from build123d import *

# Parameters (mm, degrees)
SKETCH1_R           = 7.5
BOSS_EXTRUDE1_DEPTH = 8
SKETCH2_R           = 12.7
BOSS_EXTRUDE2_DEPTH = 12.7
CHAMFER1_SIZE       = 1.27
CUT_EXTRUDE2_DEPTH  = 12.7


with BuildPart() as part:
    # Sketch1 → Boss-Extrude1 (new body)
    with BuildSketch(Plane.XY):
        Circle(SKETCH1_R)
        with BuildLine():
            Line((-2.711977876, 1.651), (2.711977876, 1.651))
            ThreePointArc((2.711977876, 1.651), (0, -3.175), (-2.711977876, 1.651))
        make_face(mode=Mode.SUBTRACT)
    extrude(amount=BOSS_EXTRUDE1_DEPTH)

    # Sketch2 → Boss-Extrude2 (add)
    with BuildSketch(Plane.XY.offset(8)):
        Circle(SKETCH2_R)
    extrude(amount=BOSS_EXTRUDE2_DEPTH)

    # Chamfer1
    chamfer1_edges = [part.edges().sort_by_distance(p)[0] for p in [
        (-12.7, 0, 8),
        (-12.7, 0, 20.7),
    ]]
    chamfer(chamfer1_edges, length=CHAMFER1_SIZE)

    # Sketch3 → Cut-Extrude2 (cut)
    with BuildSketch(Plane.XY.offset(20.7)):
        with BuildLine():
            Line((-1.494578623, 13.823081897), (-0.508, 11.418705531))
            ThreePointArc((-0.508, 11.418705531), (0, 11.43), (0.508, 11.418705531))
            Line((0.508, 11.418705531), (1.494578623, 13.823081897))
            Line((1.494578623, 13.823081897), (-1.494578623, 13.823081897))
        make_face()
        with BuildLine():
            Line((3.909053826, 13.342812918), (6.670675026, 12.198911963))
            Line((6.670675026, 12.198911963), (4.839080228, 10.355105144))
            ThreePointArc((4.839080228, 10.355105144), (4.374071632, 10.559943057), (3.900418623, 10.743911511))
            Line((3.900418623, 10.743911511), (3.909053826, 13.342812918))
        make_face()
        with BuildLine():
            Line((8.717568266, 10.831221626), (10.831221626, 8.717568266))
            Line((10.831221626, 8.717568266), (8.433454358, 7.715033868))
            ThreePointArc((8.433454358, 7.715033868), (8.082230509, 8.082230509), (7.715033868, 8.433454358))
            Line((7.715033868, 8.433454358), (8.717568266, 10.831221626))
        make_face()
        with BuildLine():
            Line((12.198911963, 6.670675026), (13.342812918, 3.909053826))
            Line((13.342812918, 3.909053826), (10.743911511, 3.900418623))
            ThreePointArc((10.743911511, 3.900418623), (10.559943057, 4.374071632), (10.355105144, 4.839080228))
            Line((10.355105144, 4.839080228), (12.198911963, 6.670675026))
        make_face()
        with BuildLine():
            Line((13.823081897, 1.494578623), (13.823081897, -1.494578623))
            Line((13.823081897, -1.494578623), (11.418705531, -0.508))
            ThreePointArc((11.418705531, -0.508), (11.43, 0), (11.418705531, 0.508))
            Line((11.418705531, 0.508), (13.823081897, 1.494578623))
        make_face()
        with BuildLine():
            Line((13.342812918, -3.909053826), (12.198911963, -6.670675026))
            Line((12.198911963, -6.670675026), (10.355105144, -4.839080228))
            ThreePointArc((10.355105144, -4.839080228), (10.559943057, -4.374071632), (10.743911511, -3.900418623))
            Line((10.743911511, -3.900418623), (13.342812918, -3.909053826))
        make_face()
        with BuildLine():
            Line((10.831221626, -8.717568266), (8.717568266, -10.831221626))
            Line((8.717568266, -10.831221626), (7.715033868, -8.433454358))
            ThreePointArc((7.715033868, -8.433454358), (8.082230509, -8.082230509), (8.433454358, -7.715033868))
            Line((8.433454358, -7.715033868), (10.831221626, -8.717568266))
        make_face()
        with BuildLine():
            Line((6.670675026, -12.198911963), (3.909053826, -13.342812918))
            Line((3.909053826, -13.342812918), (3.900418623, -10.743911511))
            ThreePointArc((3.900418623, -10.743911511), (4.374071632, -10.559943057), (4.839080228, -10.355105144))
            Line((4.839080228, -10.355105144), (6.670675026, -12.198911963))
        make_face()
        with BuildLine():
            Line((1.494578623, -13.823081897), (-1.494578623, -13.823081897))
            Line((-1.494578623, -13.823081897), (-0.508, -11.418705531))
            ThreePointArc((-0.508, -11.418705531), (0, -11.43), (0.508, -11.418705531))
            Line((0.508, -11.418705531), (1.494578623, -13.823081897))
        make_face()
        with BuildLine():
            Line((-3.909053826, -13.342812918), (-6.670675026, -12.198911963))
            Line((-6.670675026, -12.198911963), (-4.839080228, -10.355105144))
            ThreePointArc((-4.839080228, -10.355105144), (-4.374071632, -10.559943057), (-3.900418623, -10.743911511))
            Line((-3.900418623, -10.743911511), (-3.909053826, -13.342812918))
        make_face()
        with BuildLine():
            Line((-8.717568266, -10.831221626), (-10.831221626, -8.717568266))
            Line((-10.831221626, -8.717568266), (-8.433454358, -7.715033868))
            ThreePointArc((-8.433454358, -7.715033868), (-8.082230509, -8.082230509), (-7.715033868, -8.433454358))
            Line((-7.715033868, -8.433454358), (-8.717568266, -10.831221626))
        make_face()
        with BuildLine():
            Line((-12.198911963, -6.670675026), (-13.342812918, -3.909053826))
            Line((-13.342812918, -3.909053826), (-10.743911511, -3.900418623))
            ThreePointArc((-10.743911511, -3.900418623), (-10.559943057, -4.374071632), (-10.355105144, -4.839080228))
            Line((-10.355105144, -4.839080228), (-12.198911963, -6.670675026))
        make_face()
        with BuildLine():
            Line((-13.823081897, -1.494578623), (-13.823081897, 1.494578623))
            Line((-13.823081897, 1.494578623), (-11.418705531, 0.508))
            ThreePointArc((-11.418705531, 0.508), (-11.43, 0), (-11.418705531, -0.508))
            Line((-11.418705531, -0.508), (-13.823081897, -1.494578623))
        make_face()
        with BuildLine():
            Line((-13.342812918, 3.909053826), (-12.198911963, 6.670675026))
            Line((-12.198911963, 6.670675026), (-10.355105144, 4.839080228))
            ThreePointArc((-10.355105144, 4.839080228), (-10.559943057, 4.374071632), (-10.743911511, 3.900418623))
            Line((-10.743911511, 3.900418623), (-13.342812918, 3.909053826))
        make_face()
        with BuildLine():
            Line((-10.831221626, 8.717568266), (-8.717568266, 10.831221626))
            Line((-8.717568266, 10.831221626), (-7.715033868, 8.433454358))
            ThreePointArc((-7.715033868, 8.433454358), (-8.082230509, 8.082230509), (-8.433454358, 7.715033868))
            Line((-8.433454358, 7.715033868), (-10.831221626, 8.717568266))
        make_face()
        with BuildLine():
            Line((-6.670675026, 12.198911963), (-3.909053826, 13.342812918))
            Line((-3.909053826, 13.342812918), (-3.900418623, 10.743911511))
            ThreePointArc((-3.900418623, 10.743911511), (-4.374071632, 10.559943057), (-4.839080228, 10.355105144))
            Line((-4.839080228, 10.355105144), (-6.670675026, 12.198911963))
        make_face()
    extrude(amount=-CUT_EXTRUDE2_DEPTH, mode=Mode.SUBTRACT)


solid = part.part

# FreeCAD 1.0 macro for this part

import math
import FreeCAD as App
import Part
import Sketcher
Q = App.Units.Quantity


def edges_at(feature, points):
    """Names of the edges that pass closest to the given points."""
    edges = feature.Shape.Edges
    near = lambda p: min(range(len(edges)), key=lambda i: edges[i].distToShape(Part.Vertex(*p))[0])
    return sorted({f"Edge{near(p) + 1}" for p in points})

doc = App.newDocument("Part")
params = doc.addObject("Spreadsheet::Sheet", "Params")
for row, (alias, value) in enumerate([
    ("sketch1_radius", "0.125 in"),
    ("pad1_length", "8 mm"),
    ("sketch2_diameter", "1 in"),
    ("pad2_length", "0.5 in"),
    ("chamfer_size", "0.05 in"),
    ("sketch3_radius", "0.45 in"),
    ("pocket1_length", "0.5 in"),
], start=1):
    params.set(f"A{row}", alias)
    params.set(f"B{row}", "=" + value)
    params.setAlias(f"B{row}", alias)

body = doc.addObject("PartDesign::Body", "Body")

# Sketch on XY plane
sketch1 = body.newObject("Sketcher::SketchObject", "Sketch")
sketch1.AttachmentSupport = (doc.getObject("XY_Plane"), [""])
sketch1.MapMode = "FlatFace"
sketch1.addGeometry([
    Part.Circle(App.Vector(0, 0, 0), App.Vector(0, 0, 1), 7.5),
    Part.ArcOfCircle(Part.Circle(App.Vector(0, 0, 0), App.Vector(0, 0, 1), 3.2), math.radians(149), math.radians(391)),
    Part.LineSegment(App.Vector(-2.7, 1.7, 0), App.Vector(2.7, 1.7, 0)),
], False)
sketch1.addConstraint([
    Sketcher.Constraint("Coincident", 1, 1, 2, 1),
    Sketcher.Constraint("Coincident", 2, 2, 1, 2),
    Sketcher.Constraint("Horizontal", 2),
    Sketcher.Constraint("Coincident", 0, 3, -1, 1),
    Sketcher.Constraint("Coincident", 1, 3, -1, 1),
    Sketcher.Constraint("Radius", 1, Q("0.125 in")),
    Sketcher.Constraint("Diameter", 0, 15.0),
    Sketcher.Constraint("DistanceY", -1, 1, 1, 1, Q("0.065 in")),
])
sketch1.setExpression("Constraints[5]", "Params.sketch1_radius")
pad1 = body.newObject("PartDesign::Pad", "Pad")
pad1.Profile = sketch1
pad1.setExpression("Length", "Params.pad1_length")

# Sketch on XY plane
sketch2 = body.newObject("Sketcher::SketchObject", "Sketch001")
sketch2.AttachmentSupport = (doc.getObject("XY_Plane"), [""])
sketch2.MapMode = "FlatFace"
sketch2.AttachmentOffset = App.Placement(App.Vector(0, 0, 8), App.Rotation())
sketch2.addGeometry(Part.Circle(App.Vector(0, 0, 0), App.Vector(0, 0, 1), 13), False)
sketch2.addConstraint([
    Sketcher.Constraint("Coincident", 0, 3, -1, 1),
    Sketcher.Constraint("Diameter", 0, Q("1 in")),
])
sketch2.setExpression("Constraints[1]", "Params.sketch2_diameter")
pad2 = body.newObject("PartDesign::Pad", "Pad001")
pad2.Profile = sketch2
pad2.setExpression("Length", "Params.pad2_length")
doc.recompute()

chamfer = body.newObject("PartDesign::Chamfer", "Chamfer")
chamfer.Base = (pad2, edges_at(pad2, [(-12.7, 0, 8), (-12.7, 0, 20.7)]))
chamfer.setExpression("Size", "Params.chamfer_size")

# Sketch on XY plane
sketch3 = body.newObject("Sketcher::SketchObject", "Sketch002")
sketch3.AttachmentSupport = (doc.getObject("XY_Plane"), [""])
sketch3.MapMode = "FlatFace"
sketch3.AttachmentOffset = App.Placement(App.Vector(0, 0, 20.7), App.Rotation())
sketch3.addGeometry([
    Part.LineSegment(App.Vector(-1.5, 13.8, 0), App.Vector(-0.5, 11.4, 0)),  # 0
    Part.ArcOfCircle(Part.Circle(App.Vector(0, 0, 0), App.Vector(0, 0, 1), 11.4), math.radians(87.45), math.radians(92.55)),  # 1
    Part.LineSegment(App.Vector(0.5, 11.4, 0), App.Vector(1.5, 13.8, 0)),  # 2
    Part.LineSegment(App.Vector(1.5, 13.8, 0), App.Vector(-1.5, 13.8, 0)),  # 3
    Part.LineSegment(App.Vector(6.7, 12.2, 0), App.Vector(3.9, 13.3, 0)),  # 4
    Part.LineSegment(App.Vector(3.9, 13.3, 0), App.Vector(3.9, 10.7, 0)),  # 5
    Part.ArcOfCircle(Part.Circle(App.Vector(0, 0, 0), App.Vector(0, 0, 1), 11.4), math.radians(64.95), math.radians(70.05)),  # 6
    Part.LineSegment(App.Vector(4.8, 10.4, 0), App.Vector(6.7, 12.2, 0)),  # 7
    Part.LineSegment(App.Vector(10.8, 8.7, 0), App.Vector(8.7, 10.8, 0)),  # 8
    Part.LineSegment(App.Vector(8.7, 10.8, 0), App.Vector(7.7, 8.4, 0)),  # 9
    Part.ArcOfCircle(Part.Circle(App.Vector(0, 0, 0), App.Vector(0, 0, 1), 11.4), math.radians(42.45), math.radians(47.55)),  # 10
    Part.LineSegment(App.Vector(8.4, 7.7, 0), App.Vector(10.8, 8.7, 0)),  # 11
    Part.LineSegment(App.Vector(13.3, 3.9, 0), App.Vector(12.2, 6.7, 0)),  # 12
    Part.LineSegment(App.Vector(12.2, 6.7, 0), App.Vector(10.4, 4.8, 0)),  # 13
    Part.ArcOfCircle(Part.Circle(App.Vector(0, 0, 0), App.Vector(0, 0, 1), 11.4), math.radians(19.95), math.radians(25.05)),  # 14
    Part.LineSegment(App.Vector(10.7, 3.9, 0), App.Vector(13.3, 3.9, 0)),  # 15
    Part.LineSegment(App.Vector(13.8, -1.5, 0), App.Vector(13.8, 1.5, 0)),  # 16
    Part.LineSegment(App.Vector(13.8, 1.5, 0), App.Vector(11.4, 0.5, 0)),  # 17
    Part.ArcOfCircle(Part.Circle(App.Vector(0, 0, 0), App.Vector(0, 0, 1), 11.4), math.radians(-2.55), math.radians(2.55)),  # 18
    Part.LineSegment(App.Vector(11.4, -0.5, 0), App.Vector(13.8, -1.5, 0)),  # 19
    Part.LineSegment(App.Vector(12.2, -6.7, 0), App.Vector(13.3, -3.9, 0)),  # 20
    Part.LineSegment(App.Vector(13.3, -3.9, 0), App.Vector(10.7, -3.9, 0)),  # 21
    Part.ArcOfCircle(Part.Circle(App.Vector(0, 0, 0), App.Vector(0, 0, 1), 11.4), math.radians(-25.05), math.radians(-19.95)),  # 22
    Part.LineSegment(App.Vector(10.4, -4.8, 0), App.Vector(12.2, -6.7, 0)),  # 23
    Part.LineSegment(App.Vector(8.7, -10.8, 0), App.Vector(10.8, -8.7, 0)),  # 24
    Part.LineSegment(App.Vector(10.8, -8.7, 0), App.Vector(8.4, -7.7, 0)),  # 25
    Part.ArcOfCircle(Part.Circle(App.Vector(0, 0, 0), App.Vector(0, 0, 1), 11.4), math.radians(-47.55), math.radians(-42.45)),  # 26
    Part.LineSegment(App.Vector(7.7, -8.4, 0), App.Vector(8.7, -10.8, 0)),  # 27
    Part.LineSegment(App.Vector(3.9, -13.3, 0), App.Vector(6.7, -12.2, 0)),  # 28
    Part.LineSegment(App.Vector(6.7, -12.2, 0), App.Vector(4.8, -10.4, 0)),  # 29
    Part.ArcOfCircle(Part.Circle(App.Vector(0, 0, 0), App.Vector(0, 0, 1), 11.4), math.radians(-70.05), math.radians(-64.95)),  # 30
    Part.LineSegment(App.Vector(3.9, -10.7, 0), App.Vector(3.9, -13.3, 0)),  # 31
    Part.LineSegment(App.Vector(-1.5, -13.8, 0), App.Vector(1.5, -13.8, 0)),  # 32
    Part.LineSegment(App.Vector(1.5, -13.8, 0), App.Vector(0.5, -11.4, 0)),  # 33
    Part.ArcOfCircle(Part.Circle(App.Vector(0, 0, 0), App.Vector(0, 0, 1), 11.4), math.radians(-92.55), math.radians(-87.45)),  # 34
    Part.LineSegment(App.Vector(-0.5, -11.4, 0), App.Vector(-1.5, -13.8, 0)),  # 35
    Part.LineSegment(App.Vector(-6.7, -12.2, 0), App.Vector(-3.9, -13.3, 0)),  # 36
    Part.LineSegment(App.Vector(-3.9, -13.3, 0), App.Vector(-3.9, -10.7, 0)),  # 37
    Part.ArcOfCircle(Part.Circle(App.Vector(0, 0, 0), App.Vector(0, 0, 1), 11.4), math.radians(-115.05), math.radians(-109.95)),  # 38
    Part.LineSegment(App.Vector(-4.8, -10.4, 0), App.Vector(-6.7, -12.2, 0)),  # 39
    Part.LineSegment(App.Vector(-10.8, -8.7, 0), App.Vector(-8.7, -10.8, 0)),  # 40
    Part.LineSegment(App.Vector(-8.7, -10.8, 0), App.Vector(-7.7, -8.4, 0)),  # 41
    Part.ArcOfCircle(Part.Circle(App.Vector(0, 0, 0), App.Vector(0, 0, 1), 11.4), math.radians(-137.55), math.radians(-132.45)),  # 42
    Part.LineSegment(App.Vector(-8.4, -7.7, 0), App.Vector(-10.8, -8.7, 0)),  # 43
    Part.LineSegment(App.Vector(-13.3, -3.9, 0), App.Vector(-12.2, -6.7, 0)),  # 44
    Part.LineSegment(App.Vector(-12.2, -6.7, 0), App.Vector(-10.4, -4.8, 0)),  # 45
    Part.ArcOfCircle(Part.Circle(App.Vector(0, 0, 0), App.Vector(0, 0, 1), 11.4), math.radians(-160.05), math.radians(-154.95)),  # 46
    Part.LineSegment(App.Vector(-10.7, -3.9, 0), App.Vector(-13.3, -3.9, 0)),  # 47
    Part.LineSegment(App.Vector(-13.8, 1.5, 0), App.Vector(-13.8, -1.5, 0)),  # 48
    Part.LineSegment(App.Vector(-13.8, -1.5, 0), App.Vector(-11.4, -0.5, 0)),  # 49
    Part.ArcOfCircle(Part.Circle(App.Vector(0, 0, 0), App.Vector(0, 0, 1), 11.4), math.radians(177.45), math.radians(182.55)),  # 50
    Part.LineSegment(App.Vector(-11.4, 0.5, 0), App.Vector(-13.8, 1.5, 0)),  # 51
    Part.LineSegment(App.Vector(-12.2, 6.7, 0), App.Vector(-13.3, 3.9, 0)),  # 52
    Part.LineSegment(App.Vector(-13.3, 3.9, 0), App.Vector(-10.7, 3.9, 0)),  # 53
    Part.ArcOfCircle(Part.Circle(App.Vector(0, 0, 0), App.Vector(0, 0, 1), 11.4), math.radians(154.95), math.radians(160.05)),  # 54
    Part.LineSegment(App.Vector(-10.4, 4.8, 0), App.Vector(-12.2, 6.7, 0)),  # 55
    Part.LineSegment(App.Vector(-8.7, 10.8, 0), App.Vector(-10.8, 8.7, 0)),  # 56
    Part.LineSegment(App.Vector(-10.8, 8.7, 0), App.Vector(-8.4, 7.7, 0)),  # 57
    Part.ArcOfCircle(Part.Circle(App.Vector(0, 0, 0), App.Vector(0, 0, 1), 11.4), math.radians(132.45), math.radians(137.55)),  # 58
    Part.LineSegment(App.Vector(-7.7, 8.4, 0), App.Vector(-8.7, 10.8, 0)),  # 59
    Part.LineSegment(App.Vector(-3.9, 13.3, 0), App.Vector(-6.7, 12.2, 0)),  # 60
    Part.LineSegment(App.Vector(-6.7, 12.2, 0), App.Vector(-4.8, 10.4, 0)),  # 61
    Part.ArcOfCircle(Part.Circle(App.Vector(0, 0, 0), App.Vector(0, 0, 1), 11.4), math.radians(109.95), math.radians(115.05)),  # 62
    Part.LineSegment(App.Vector(-3.9, 10.7, 0), App.Vector(-3.9, 13.3, 0)),  # 63
], False)
sketch3.addConstraint([
    Sketcher.Constraint("Coincident", 0, 2, 1, 2),
    Sketcher.Constraint("Coincident", 1, 1, 2, 1),
    Sketcher.Constraint("Coincident", 2, 2, 3, 1),
    Sketcher.Constraint("Coincident", 3, 2, 0, 1),
    Sketcher.Constraint("Coincident", 4, 2, 5, 1),
    Sketcher.Constraint("Coincident", 5, 2, 6, 2),
    Sketcher.Constraint("Coincident", 6, 1, 7, 1),
    Sketcher.Constraint("Coincident", 7, 2, 4, 1),
    Sketcher.Constraint("Coincident", 8, 2, 9, 1),
    Sketcher.Constraint("Coincident", 9, 2, 10, 2),
    Sketcher.Constraint("Coincident", 10, 1, 11, 1),
    Sketcher.Constraint("Coincident", 11, 2, 8, 1),
    Sketcher.Constraint("Coincident", 12, 2, 13, 1),
    Sketcher.Constraint("Coincident", 13, 2, 14, 2),
    Sketcher.Constraint("Coincident", 14, 1, 15, 1),
    Sketcher.Constraint("Coincident", 15, 2, 12, 1),
    Sketcher.Constraint("Coincident", 16, 2, 17, 1),
    Sketcher.Constraint("Coincident", 17, 2, 18, 2),
    Sketcher.Constraint("Coincident", 18, 1, 19, 1),
    Sketcher.Constraint("Coincident", 19, 2, 16, 1),
    Sketcher.Constraint("Coincident", 20, 2, 21, 1),
    Sketcher.Constraint("Coincident", 21, 2, 22, 2),
    Sketcher.Constraint("Coincident", 22, 1, 23, 1),
    Sketcher.Constraint("Coincident", 23, 2, 20, 1),
    Sketcher.Constraint("Coincident", 24, 2, 25, 1),
    Sketcher.Constraint("Coincident", 25, 2, 26, 2),
    Sketcher.Constraint("Coincident", 26, 1, 27, 1),
    Sketcher.Constraint("Coincident", 27, 2, 24, 1),
    Sketcher.Constraint("Coincident", 28, 2, 29, 1),
    Sketcher.Constraint("Coincident", 29, 2, 30, 2),
    Sketcher.Constraint("Coincident", 30, 1, 31, 1),
    Sketcher.Constraint("Coincident", 31, 2, 28, 1),
    Sketcher.Constraint("Coincident", 32, 2, 33, 1),
    Sketcher.Constraint("Coincident", 33, 2, 34, 2),
    Sketcher.Constraint("Coincident", 34, 1, 35, 1),
    Sketcher.Constraint("Coincident", 35, 2, 32, 1),
    Sketcher.Constraint("Coincident", 36, 2, 37, 1),
    Sketcher.Constraint("Coincident", 37, 2, 38, 2),
    Sketcher.Constraint("Coincident", 38, 1, 39, 1),
    Sketcher.Constraint("Coincident", 39, 2, 36, 1),
    Sketcher.Constraint("Coincident", 40, 2, 41, 1),
    Sketcher.Constraint("Coincident", 41, 2, 42, 2),
    Sketcher.Constraint("Coincident", 42, 1, 43, 1),
    Sketcher.Constraint("Coincident", 43, 2, 40, 1),
    Sketcher.Constraint("Coincident", 44, 2, 45, 1),
    Sketcher.Constraint("Coincident", 45, 2, 46, 2),
    Sketcher.Constraint("Coincident", 46, 1, 47, 1),
    Sketcher.Constraint("Coincident", 47, 2, 44, 1),
    Sketcher.Constraint("Coincident", 48, 2, 49, 1),
    Sketcher.Constraint("Coincident", 49, 2, 50, 2),
    Sketcher.Constraint("Coincident", 50, 1, 51, 1),
    Sketcher.Constraint("Coincident", 51, 2, 48, 1),
    Sketcher.Constraint("Coincident", 52, 2, 53, 1),
    Sketcher.Constraint("Coincident", 53, 2, 54, 2),
    Sketcher.Constraint("Coincident", 54, 1, 55, 1),
    Sketcher.Constraint("Coincident", 55, 2, 52, 1),
    Sketcher.Constraint("Coincident", 56, 2, 57, 1),
    Sketcher.Constraint("Coincident", 57, 2, 58, 2),
    Sketcher.Constraint("Coincident", 58, 1, 59, 1),
    Sketcher.Constraint("Coincident", 59, 2, 56, 1),
    Sketcher.Constraint("Coincident", 60, 2, 61, 1),
    Sketcher.Constraint("Coincident", 61, 2, 62, 2),
    Sketcher.Constraint("Coincident", 62, 1, 63, 1),
    Sketcher.Constraint("Coincident", 63, 2, 60, 1),
    Sketcher.Constraint("Horizontal", 3),
    Sketcher.Constraint("Vertical", 16),
    Sketcher.Constraint("Horizontal", 32),
    Sketcher.Constraint("Vertical", 48),
    Sketcher.Constraint("Coincident", 1, 3, -1, 1),
    Sketcher.Constraint("Coincident", 6, 3, -1, 1),
    Sketcher.Constraint("Coincident", 10, 3, -1, 1),
    Sketcher.Constraint("Coincident", 14, 3, -1, 1),
    Sketcher.Constraint("Coincident", 18, 3, -1, 1),
    Sketcher.Constraint("Coincident", 22, 3, -1, 1),
    Sketcher.Constraint("Coincident", 26, 3, -1, 1),
    Sketcher.Constraint("Coincident", 30, 3, -1, 1),
    Sketcher.Constraint("Coincident", 34, 3, -1, 1),
    Sketcher.Constraint("Coincident", 38, 3, -1, 1),
    Sketcher.Constraint("Coincident", 42, 3, -1, 1),
    Sketcher.Constraint("Coincident", 46, 3, -1, 1),
    Sketcher.Constraint("Coincident", 50, 3, -1, 1),
    Sketcher.Constraint("Coincident", 54, 3, -1, 1),
    Sketcher.Constraint("Coincident", 58, 3, -1, 1),
    Sketcher.Constraint("Coincident", 62, 3, -1, 1),
    Sketcher.Constraint("Equal", 1, 6),
    Sketcher.Constraint("Equal", 6, 10),
    Sketcher.Constraint("Equal", 10, 14),
    Sketcher.Constraint("Equal", 14, 18),
    Sketcher.Constraint("Equal", 18, 22),
    Sketcher.Constraint("Equal", 22, 26),
    Sketcher.Constraint("Equal", 26, 30),
    Sketcher.Constraint("Equal", 30, 34),
    Sketcher.Constraint("Equal", 34, 38),
    Sketcher.Constraint("Equal", 38, 42),
    Sketcher.Constraint("Equal", 42, 46),
    Sketcher.Constraint("Equal", 46, 50),
    Sketcher.Constraint("Equal", 50, 54),
    Sketcher.Constraint("Equal", 54, 58),
    Sketcher.Constraint("Equal", 58, 62),
    Sketcher.Constraint("Symmetric", 3, 2, 32, 2, -1, 1),
    Sketcher.Constraint("Symmetric", 4, 2, 36, 2, -1, 1),
    Sketcher.Constraint("Symmetric", 7, 2, 39, 2, -1, 1),
    Sketcher.Constraint("Symmetric", 8, 2, 40, 2, -1, 1),
    Sketcher.Constraint("Symmetric", 11, 2, 43, 2, -1, 1),
    Sketcher.Constraint("Symmetric", 12, 2, 44, 2, -1, 1),
    Sketcher.Constraint("Symmetric", 15, 2, 47, 2, -1, 1),
    Sketcher.Constraint("Symmetric", 16, 2, 48, 2, -1, 1),
    Sketcher.Constraint("Symmetric", 20, 2, 52, 2, -1, 1),
    Sketcher.Constraint("Symmetric", 23, 2, 55, 2, -1, 1),
    Sketcher.Constraint("Symmetric", 24, 2, 56, 2, -1, 1),
    Sketcher.Constraint("Symmetric", 27, 2, 59, 2, -1, 1),
    Sketcher.Constraint("Symmetric", 28, 2, 60, 2, -1, 1),
    Sketcher.Constraint("Symmetric", 31, 2, 63, 2, -1, 1),
    Sketcher.Constraint("Symmetric", 31, 2, 36, 2, -2),
    Sketcher.Constraint("Symmetric", 28, 2, 39, 2, -2),
    Sketcher.Constraint("Symmetric", 27, 2, 40, 2, -2),
    Sketcher.Constraint("Symmetric", 24, 2, 43, 2, -2),
    Sketcher.Constraint("Symmetric", 23, 2, 44, 2, -2),
    Sketcher.Constraint("Symmetric", 20, 2, 47, 2, -2),
    Sketcher.Constraint("Perpendicular", 0, 17),
    Sketcher.Constraint("Perpendicular", 2, 19),
    Sketcher.Constraint("Perpendicular", 4, 20),
    Sketcher.Constraint("Perpendicular", 5, 21),
    Sketcher.Constraint("Perpendicular", 7, 23),
    Sketcher.Constraint("Perpendicular", 8, 24),
    Sketcher.Constraint("Perpendicular", 9, 25),
    Sketcher.Constraint("Perpendicular", 11, 27),
    Sketcher.Constraint("Perpendicular", 13, 29),
    Sketcher.Constraint("Perpendicular", 15, 31),
    Sketcher.Constraint("Perpendicular", 17, 33),
    Sketcher.Constraint("Perpendicular", 19, 35),
    Sketcher.Constraint("Perpendicular", 21, 37),
    Sketcher.Constraint("Perpendicular", 23, 39),
    Sketcher.Constraint("Perpendicular", 25, 41),
    Sketcher.Constraint("Perpendicular", 27, 43),
    Sketcher.Constraint("Perpendicular", 29, 45),
    Sketcher.Constraint("Perpendicular", 31, 47),
    Sketcher.Constraint("Perpendicular", 33, 49),
    Sketcher.Constraint("Perpendicular", 35, 51),
    Sketcher.Constraint("Perpendicular", 37, 53),
    Sketcher.Constraint("Perpendicular", 39, 55),
    Sketcher.Constraint("Perpendicular", 41, 57),
    Sketcher.Constraint("Perpendicular", 43, 59),
    Sketcher.Constraint("Perpendicular", 45, 61),
    Sketcher.Constraint("Perpendicular", 47, 63),
    Sketcher.Constraint("Horizontal", 0, 2, 1, 1),
    Sketcher.Constraint("Horizontal", 33, 2, 34, 1),
    Sketcher.Constraint("Horizontal", 30, 1, 37, 2),
    Sketcher.Constraint("Horizontal", 29, 2, 38, 1),
    Sketcher.Constraint("Horizontal", 26, 1, 41, 2),
    Sketcher.Constraint("Horizontal", 19, 2, 48, 2),
    Sketcher.Constraint("Horizontal", 18, 1, 49, 2),
    Sketcher.Constraint("Horizontal", 17, 2, 50, 1),
    Sketcher.Constraint("Equal", 32, 16),
    Sketcher.Constraint("Equal", 2, 5),
    Sketcher.Constraint("Equal", 5, 7),
    Sketcher.Constraint("Equal", 4, 8),
    Sketcher.Constraint("Equal", 7, 9),
    Sketcher.Constraint("Equal", 9, 11),
    Sketcher.Constraint("Equal", 8, 12),
    Sketcher.Constraint("Equal", 11, 13),
    Sketcher.Constraint("Equal", 13, 15),
    Sketcher.Constraint("Equal", 15, 17),
    Sketcher.Constraint("Radius", 1, Q("0.45 in")),
    Sketcher.Constraint("Angle", 4, Q("157.5 deg")),
    Sketcher.Constraint("DistanceX", 0, 2, -1, 1, Q("0.02 in")),
    Sketcher.Constraint("DistanceX", 3, 2, 3, 1, 2.989157),
    Sketcher.Constraint("DistanceY", -1, 1, 2, 2, 13.823082),
    Sketcher.Constraint("DistanceX", -1, 1, 5, 2, 3.900419),
    Sketcher.Constraint("DistanceX", -1, 1, 6, 1, 4.83908),
    Sketcher.Constraint("DistanceY", -1, 1, 7, 2, 12.198912),
    Sketcher.Constraint("DistanceX", -1, 1, 8, 2, 8.717568),
])
sketch3.setExpression("Constraints[163]", "Params.sketch3_radius")
pocket1 = body.newObject("PartDesign::Pocket", "Pocket")
pocket1.Profile = sketch3
pocket1.setExpression("Length", "Params.pocket1_length")

doc.recompute()
